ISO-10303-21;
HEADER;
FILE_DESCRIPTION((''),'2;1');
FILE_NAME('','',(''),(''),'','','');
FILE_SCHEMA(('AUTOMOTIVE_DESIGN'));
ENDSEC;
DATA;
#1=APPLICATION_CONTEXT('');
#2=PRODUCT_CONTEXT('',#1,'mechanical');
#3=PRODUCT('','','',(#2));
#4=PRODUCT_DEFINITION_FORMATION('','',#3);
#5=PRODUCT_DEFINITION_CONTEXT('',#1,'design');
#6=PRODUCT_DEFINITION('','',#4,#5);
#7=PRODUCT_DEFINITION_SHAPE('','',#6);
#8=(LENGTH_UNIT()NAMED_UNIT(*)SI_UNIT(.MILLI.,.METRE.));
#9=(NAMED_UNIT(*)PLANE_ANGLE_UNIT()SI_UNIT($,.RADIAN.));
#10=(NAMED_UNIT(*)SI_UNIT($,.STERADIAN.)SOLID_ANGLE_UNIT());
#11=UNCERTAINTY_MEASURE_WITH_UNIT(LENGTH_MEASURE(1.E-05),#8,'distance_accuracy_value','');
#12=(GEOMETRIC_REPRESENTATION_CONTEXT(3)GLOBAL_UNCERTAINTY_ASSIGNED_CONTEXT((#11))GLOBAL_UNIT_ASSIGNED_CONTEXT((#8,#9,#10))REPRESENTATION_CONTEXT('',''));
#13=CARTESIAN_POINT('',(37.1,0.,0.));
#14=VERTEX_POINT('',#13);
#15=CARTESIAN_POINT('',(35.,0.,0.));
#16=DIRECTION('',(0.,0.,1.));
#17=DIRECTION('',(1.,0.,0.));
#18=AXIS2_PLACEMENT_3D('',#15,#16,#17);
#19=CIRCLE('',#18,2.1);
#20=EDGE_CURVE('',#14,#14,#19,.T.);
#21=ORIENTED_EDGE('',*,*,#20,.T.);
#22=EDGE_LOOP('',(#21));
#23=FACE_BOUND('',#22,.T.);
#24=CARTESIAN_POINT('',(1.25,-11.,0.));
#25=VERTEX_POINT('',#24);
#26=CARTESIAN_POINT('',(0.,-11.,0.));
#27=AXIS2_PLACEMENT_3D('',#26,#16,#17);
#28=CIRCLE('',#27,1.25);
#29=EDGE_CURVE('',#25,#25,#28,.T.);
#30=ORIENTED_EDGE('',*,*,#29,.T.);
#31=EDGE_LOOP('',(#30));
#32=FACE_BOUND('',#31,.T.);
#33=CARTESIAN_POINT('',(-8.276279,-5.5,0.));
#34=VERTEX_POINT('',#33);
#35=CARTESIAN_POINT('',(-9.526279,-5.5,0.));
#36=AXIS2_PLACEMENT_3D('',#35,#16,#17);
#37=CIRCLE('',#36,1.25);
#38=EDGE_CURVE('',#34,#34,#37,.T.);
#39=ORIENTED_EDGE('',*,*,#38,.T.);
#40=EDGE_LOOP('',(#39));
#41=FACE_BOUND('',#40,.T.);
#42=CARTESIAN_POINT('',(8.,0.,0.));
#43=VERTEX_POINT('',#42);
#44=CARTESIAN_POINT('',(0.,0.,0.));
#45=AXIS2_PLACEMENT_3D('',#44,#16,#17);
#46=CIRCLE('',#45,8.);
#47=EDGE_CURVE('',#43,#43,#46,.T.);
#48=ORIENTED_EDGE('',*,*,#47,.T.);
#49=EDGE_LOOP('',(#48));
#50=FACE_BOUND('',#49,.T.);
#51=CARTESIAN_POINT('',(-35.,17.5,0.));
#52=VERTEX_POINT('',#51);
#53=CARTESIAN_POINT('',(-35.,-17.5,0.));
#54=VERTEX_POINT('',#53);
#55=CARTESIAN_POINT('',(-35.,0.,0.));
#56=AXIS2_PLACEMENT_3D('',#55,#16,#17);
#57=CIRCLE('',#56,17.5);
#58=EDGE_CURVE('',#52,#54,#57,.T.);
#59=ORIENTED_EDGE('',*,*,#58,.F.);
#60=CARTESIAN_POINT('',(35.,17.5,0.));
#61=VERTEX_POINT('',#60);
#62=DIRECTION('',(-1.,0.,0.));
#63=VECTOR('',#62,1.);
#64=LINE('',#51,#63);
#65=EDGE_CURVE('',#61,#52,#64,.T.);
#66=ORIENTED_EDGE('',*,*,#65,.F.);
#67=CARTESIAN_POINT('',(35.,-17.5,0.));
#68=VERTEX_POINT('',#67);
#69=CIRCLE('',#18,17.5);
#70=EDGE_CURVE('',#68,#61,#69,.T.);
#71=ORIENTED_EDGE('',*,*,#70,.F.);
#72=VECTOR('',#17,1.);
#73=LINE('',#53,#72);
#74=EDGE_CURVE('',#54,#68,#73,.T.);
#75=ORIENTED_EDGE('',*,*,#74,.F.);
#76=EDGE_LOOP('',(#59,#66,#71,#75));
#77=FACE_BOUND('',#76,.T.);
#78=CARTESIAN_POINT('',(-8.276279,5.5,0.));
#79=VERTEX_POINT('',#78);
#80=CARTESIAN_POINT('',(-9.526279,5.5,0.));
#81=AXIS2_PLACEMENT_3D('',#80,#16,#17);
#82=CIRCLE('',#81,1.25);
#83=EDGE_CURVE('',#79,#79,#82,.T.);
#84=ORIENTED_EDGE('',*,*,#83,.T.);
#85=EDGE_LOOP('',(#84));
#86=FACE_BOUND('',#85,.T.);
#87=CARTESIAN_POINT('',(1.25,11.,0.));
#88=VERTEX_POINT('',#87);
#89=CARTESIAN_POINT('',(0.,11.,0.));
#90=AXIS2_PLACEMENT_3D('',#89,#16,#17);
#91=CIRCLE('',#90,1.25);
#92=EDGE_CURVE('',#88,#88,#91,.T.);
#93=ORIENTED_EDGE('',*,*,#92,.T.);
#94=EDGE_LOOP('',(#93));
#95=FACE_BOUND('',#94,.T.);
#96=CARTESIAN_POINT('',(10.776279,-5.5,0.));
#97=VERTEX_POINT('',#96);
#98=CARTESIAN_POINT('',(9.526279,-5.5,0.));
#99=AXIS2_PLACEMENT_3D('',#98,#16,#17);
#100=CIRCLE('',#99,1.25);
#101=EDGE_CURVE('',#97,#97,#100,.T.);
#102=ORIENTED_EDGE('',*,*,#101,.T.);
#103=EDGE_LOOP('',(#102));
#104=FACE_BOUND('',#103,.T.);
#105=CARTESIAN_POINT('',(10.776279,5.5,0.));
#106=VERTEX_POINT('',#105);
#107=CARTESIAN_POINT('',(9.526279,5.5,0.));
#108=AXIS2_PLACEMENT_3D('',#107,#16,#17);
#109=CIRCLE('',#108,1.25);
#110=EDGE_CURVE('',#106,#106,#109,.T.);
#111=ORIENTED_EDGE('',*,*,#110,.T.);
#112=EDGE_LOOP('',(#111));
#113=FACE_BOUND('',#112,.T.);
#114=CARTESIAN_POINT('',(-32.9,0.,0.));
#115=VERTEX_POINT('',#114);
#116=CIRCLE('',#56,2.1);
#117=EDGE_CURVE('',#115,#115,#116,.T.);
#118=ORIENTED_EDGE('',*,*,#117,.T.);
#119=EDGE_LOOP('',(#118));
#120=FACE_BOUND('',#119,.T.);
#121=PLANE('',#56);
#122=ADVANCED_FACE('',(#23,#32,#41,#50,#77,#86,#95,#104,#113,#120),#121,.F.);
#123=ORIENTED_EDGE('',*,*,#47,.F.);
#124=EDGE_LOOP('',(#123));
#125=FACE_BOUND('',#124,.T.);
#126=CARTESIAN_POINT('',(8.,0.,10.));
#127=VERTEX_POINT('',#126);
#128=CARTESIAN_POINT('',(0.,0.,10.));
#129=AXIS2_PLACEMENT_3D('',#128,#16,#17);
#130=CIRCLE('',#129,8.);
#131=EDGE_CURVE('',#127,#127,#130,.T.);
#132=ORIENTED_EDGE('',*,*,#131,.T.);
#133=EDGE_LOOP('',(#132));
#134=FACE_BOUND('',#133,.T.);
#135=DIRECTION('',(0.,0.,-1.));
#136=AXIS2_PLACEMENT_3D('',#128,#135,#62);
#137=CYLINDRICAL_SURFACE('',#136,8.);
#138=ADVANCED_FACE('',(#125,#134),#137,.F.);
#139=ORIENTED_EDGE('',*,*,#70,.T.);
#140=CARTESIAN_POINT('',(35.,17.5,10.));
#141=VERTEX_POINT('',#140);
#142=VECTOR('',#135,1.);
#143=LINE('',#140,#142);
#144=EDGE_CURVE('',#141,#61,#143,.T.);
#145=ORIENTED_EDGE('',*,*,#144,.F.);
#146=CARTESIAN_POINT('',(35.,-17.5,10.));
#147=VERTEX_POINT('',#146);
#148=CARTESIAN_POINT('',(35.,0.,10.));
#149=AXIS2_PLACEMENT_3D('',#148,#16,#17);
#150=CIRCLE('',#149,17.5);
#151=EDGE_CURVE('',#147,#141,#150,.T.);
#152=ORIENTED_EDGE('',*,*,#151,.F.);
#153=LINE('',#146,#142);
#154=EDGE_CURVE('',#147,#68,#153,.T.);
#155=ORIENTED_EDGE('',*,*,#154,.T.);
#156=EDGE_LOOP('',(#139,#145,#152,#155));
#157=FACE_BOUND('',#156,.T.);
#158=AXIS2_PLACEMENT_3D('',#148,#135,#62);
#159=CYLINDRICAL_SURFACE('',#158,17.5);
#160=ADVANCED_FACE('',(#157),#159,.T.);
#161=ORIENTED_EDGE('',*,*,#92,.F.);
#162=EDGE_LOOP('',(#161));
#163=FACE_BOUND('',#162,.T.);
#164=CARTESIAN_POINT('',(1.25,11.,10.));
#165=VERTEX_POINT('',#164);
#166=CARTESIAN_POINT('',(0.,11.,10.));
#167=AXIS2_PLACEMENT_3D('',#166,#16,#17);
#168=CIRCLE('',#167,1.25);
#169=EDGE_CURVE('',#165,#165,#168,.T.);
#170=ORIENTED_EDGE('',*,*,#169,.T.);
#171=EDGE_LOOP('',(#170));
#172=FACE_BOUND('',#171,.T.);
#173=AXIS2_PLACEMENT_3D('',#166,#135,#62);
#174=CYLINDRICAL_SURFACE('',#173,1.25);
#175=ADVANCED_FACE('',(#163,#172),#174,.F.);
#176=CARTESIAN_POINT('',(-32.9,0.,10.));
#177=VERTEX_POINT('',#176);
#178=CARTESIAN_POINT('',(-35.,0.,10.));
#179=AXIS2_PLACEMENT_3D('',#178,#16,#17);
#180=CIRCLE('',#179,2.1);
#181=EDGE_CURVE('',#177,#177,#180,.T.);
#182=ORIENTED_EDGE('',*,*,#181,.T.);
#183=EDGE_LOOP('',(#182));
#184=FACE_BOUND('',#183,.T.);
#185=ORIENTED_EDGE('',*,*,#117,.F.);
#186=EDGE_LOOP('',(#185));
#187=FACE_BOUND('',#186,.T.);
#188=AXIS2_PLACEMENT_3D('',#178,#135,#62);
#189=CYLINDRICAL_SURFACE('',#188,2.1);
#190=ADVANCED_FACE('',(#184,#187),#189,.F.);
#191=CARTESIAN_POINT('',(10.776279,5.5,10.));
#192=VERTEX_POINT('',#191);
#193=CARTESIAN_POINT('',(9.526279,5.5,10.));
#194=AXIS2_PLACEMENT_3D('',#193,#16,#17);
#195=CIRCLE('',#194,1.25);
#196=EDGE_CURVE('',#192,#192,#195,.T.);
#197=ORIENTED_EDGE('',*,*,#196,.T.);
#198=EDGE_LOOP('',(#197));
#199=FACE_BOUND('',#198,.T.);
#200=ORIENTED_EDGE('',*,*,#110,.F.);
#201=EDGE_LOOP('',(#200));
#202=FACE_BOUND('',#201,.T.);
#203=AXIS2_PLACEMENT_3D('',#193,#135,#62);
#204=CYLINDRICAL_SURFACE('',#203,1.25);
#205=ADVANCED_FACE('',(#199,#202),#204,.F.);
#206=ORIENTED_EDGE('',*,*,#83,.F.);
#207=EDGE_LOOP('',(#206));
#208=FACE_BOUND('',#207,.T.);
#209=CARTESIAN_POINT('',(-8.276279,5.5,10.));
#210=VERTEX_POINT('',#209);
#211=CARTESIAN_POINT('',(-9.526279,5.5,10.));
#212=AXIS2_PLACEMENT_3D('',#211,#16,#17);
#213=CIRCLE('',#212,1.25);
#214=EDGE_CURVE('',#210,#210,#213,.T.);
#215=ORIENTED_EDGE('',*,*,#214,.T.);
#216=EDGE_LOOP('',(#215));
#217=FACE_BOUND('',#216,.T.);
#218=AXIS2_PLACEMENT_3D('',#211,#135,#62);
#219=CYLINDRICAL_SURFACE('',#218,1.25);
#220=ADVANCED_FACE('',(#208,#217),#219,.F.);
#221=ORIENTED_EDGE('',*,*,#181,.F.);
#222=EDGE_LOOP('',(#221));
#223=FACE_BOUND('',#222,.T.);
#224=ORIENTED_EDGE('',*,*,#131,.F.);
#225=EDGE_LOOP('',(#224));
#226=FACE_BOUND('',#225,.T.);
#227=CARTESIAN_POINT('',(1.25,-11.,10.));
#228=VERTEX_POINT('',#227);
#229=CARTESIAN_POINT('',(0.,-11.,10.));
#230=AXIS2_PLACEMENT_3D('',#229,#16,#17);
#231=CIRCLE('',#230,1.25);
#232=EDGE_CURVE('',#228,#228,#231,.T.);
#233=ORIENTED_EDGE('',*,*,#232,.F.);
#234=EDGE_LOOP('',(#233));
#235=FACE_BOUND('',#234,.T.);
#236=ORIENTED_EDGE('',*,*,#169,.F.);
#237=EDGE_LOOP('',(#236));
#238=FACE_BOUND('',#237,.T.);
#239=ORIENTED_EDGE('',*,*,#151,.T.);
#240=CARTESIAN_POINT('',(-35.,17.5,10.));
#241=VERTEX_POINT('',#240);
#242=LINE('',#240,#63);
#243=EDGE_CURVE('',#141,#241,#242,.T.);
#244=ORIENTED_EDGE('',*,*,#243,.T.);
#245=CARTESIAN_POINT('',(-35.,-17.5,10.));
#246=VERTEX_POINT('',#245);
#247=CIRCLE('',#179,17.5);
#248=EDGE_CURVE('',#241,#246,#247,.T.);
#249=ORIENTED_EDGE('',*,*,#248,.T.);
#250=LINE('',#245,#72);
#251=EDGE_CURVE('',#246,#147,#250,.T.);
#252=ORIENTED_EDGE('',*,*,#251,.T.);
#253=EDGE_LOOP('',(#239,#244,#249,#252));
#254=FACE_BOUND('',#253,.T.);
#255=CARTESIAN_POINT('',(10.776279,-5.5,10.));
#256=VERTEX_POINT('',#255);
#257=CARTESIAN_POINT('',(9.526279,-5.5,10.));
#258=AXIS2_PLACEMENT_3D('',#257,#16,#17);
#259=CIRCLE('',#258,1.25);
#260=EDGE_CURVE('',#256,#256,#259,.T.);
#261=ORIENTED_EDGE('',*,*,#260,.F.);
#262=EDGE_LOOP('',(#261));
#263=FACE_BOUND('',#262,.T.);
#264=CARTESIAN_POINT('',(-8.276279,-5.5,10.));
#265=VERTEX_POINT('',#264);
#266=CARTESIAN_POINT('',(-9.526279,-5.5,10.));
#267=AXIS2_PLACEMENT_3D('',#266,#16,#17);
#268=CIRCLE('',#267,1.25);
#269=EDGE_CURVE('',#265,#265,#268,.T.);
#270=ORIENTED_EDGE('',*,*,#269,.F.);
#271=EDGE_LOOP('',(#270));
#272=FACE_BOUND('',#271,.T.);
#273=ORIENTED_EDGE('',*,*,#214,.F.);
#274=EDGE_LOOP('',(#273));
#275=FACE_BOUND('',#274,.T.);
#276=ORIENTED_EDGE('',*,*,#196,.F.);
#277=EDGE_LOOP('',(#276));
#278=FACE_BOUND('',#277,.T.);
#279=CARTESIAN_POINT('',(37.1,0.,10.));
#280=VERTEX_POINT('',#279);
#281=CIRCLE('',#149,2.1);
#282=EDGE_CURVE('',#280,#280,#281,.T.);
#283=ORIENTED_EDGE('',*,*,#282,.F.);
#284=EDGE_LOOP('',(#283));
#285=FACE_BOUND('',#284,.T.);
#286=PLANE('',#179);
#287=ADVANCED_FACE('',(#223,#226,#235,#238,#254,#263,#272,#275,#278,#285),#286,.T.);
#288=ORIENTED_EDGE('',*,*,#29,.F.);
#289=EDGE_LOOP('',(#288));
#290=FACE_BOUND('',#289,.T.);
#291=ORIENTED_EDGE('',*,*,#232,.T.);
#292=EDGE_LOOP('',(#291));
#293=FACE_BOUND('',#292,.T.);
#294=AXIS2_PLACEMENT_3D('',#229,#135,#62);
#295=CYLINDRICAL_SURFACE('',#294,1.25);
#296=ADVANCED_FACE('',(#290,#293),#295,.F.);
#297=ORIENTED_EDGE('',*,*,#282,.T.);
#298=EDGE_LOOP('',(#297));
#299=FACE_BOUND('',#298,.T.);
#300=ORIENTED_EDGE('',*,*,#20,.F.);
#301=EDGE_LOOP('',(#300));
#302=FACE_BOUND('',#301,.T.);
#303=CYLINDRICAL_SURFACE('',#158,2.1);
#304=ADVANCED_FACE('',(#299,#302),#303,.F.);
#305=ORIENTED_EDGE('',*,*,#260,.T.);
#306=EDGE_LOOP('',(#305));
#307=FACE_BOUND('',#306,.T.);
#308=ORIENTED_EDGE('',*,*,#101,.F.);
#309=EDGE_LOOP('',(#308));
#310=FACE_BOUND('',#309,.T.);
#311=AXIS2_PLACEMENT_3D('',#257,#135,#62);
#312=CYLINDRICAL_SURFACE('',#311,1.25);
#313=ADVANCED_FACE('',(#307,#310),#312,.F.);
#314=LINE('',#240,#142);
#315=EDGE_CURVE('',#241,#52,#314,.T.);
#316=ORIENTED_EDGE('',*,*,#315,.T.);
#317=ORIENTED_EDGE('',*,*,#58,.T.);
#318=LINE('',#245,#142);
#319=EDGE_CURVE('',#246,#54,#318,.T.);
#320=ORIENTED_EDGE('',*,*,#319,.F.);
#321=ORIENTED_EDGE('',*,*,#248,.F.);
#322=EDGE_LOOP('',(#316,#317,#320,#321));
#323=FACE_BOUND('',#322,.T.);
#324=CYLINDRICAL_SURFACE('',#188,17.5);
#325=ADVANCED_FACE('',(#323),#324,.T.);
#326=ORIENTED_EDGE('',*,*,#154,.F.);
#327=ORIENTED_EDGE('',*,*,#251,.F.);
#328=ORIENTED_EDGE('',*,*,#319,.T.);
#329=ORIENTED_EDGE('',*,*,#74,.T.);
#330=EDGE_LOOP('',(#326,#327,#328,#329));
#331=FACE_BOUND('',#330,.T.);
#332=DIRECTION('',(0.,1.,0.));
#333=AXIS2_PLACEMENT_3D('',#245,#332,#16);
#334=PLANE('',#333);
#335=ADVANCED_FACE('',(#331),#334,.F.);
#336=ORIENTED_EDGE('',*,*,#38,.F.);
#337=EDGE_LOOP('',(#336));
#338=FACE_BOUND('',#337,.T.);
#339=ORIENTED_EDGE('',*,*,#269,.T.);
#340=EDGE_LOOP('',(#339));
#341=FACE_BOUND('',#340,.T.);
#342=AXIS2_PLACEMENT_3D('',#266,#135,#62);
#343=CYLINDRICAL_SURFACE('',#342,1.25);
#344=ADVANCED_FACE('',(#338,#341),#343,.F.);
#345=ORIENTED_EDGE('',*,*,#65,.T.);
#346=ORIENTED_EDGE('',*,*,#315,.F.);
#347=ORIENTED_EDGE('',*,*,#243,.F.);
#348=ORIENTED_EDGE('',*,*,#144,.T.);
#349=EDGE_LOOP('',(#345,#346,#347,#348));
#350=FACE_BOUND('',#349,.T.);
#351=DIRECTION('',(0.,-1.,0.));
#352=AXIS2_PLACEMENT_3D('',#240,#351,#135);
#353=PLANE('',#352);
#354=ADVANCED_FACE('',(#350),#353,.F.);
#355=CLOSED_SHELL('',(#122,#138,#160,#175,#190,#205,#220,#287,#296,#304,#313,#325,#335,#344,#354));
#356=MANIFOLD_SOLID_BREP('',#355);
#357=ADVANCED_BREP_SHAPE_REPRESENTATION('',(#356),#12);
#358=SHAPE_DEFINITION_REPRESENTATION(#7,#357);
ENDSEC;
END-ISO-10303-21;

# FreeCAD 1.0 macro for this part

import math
import FreeCAD as App
import Part
import Sketcher
Q = App.Units.Quantity

doc = App.newDocument("Part")
body = doc.addObject("PartDesign::Body", "Body")

# Sketch on XY plane
sketch1 = doc.addObject("Sketcher::SketchObject", "Sketch")
body.addObject(sketch1)
sketch1.AttachmentSupport = (doc.XY_Plane, [""])
sketch1.MapMode = "FlatFace"
sketch1.addGeometry([
    Part.LineSegment(App.Vector(35, 17.5, 0), App.Vector(-35, 17.5, 0)),  # 0
    Part.ArcOfCircle(Part.Circle(App.Vector(-35, 0, 0), App.Vector(0, 0, 1), 17.5), math.radians(90), math.radians(270)),  # 1
    Part.LineSegment(App.Vector(-35, -17.5, 0), App.Vector(35, -17.5, 0)),  # 2
    Part.ArcOfCircle(Part.Circle(App.Vector(35, 0, 0), App.Vector(0, 0, 1), 17.5), math.radians(-90), math.radians(90)),  # 3
    Part.Circle(App.Vector(35, 0, 0), App.Vector(0, 0, 1), 2.1),  # 4
    Part.Circle(App.Vector(9.526279, -5.5, 0), App.Vector(0, 0, 1), 1.25),  # 5
    Part.Circle(App.Vector(0, -11, 0), App.Vector(0, 0, 1), 1.25),  # 6
    Part.Circle(App.Vector(-9.526279, -5.5, 0), App.Vector(0, 0, 1), 1.25),  # 7
    Part.Circle(App.Vector(0, 0, 0), App.Vector(0, 0, 1), 8),  # 8
    Part.Circle(App.Vector(-35, 0, 0), App.Vector(0, 0, 1), 2.1),  # 9
    Part.Circle(App.Vector(9.526279, 5.5, 0), App.Vector(0, 0, 1), 1.25),  # 10
    Part.Circle(App.Vector(-9.526279, 5.5, 0), App.Vector(0, 0, 1), 1.25),  # 11
    Part.Circle(App.Vector(0, 11, 0), App.Vector(0, 0, 1), 1.25),  # 12
], False)
sketch1.addConstraint([
    Sketcher.Constraint("Tangent", 0, 2, 1, 1),
    Sketcher.Constraint("Tangent", 1, 2, 2, 1),
    Sketcher.Constraint("Tangent", 2, 2, 3, 1),
    Sketcher.Constraint("Tangent", 3, 2, 0, 1),
    Sketcher.Constraint("Horizontal", 0),
    Sketcher.Constraint("Horizontal", 2),
    Sketcher.Constraint("Coincident", 8, 3, -1, 1),
    Sketcher.Constraint("Coincident", 4, 3, 3, 3),
    Sketcher.Constraint("Coincident", 9, 3, 1, 3),
    Sketcher.Constraint("Equal", 5, 6),
    Sketcher.Constraint("Equal", 6, 7),
    Sketcher.Constraint("Equal", 4, 9),
    Sketcher.Constraint("Equal", 7, 10),
    Sketcher.Constraint("Equal", 10, 11),
    Sketcher.Constraint("Equal", 11, 12),
    Sketcher.Constraint("Symmetric", 1, 3, 3, 3, -1, 1),
    Sketcher.Constraint("Symmetric", 7, 3, 10, 3, -1, 1),
    Sketcher.Constraint("Symmetric", 5, 3, 11, 3, -1, 1),
    Sketcher.Constraint("Symmetric", 6, 3, 12, 3, -1, 1),
    Sketcher.Constraint("Symmetric", 5, 3, 7, 3, -2),
    Sketcher.Constraint("PointOnObject", 6, 3, -2),
    Sketcher.Constraint("Diameter", 8, Q("16 mm")),
    Sketcher.Constraint("Diameter", 4, Q("4.2 mm")),
    Sketcher.Constraint("Diameter", 5, Q("2.5 mm")),
    Sketcher.Constraint("Radius", 1, Q("17.5 mm")),
    Sketcher.Constraint("DistanceX", 0, 2, 0, 1, Q("70 mm")),
    Sketcher.Constraint("DistanceY", 6, 3, -1, 1, Q("11 mm")),
    Sketcher.Constraint("DistanceY", 5, 3, 10, 3, Q("11 mm")),
    Sketcher.Constraint("DistanceX", -1, 1, 5, 3, Q("9.526279 mm")),
])
pad1 = doc.addObject("PartDesign::Pad", "Pad")
body.addObject(pad1)
pad1.Profile = sketch1
pad1.Length = 10

doc.recompute()
